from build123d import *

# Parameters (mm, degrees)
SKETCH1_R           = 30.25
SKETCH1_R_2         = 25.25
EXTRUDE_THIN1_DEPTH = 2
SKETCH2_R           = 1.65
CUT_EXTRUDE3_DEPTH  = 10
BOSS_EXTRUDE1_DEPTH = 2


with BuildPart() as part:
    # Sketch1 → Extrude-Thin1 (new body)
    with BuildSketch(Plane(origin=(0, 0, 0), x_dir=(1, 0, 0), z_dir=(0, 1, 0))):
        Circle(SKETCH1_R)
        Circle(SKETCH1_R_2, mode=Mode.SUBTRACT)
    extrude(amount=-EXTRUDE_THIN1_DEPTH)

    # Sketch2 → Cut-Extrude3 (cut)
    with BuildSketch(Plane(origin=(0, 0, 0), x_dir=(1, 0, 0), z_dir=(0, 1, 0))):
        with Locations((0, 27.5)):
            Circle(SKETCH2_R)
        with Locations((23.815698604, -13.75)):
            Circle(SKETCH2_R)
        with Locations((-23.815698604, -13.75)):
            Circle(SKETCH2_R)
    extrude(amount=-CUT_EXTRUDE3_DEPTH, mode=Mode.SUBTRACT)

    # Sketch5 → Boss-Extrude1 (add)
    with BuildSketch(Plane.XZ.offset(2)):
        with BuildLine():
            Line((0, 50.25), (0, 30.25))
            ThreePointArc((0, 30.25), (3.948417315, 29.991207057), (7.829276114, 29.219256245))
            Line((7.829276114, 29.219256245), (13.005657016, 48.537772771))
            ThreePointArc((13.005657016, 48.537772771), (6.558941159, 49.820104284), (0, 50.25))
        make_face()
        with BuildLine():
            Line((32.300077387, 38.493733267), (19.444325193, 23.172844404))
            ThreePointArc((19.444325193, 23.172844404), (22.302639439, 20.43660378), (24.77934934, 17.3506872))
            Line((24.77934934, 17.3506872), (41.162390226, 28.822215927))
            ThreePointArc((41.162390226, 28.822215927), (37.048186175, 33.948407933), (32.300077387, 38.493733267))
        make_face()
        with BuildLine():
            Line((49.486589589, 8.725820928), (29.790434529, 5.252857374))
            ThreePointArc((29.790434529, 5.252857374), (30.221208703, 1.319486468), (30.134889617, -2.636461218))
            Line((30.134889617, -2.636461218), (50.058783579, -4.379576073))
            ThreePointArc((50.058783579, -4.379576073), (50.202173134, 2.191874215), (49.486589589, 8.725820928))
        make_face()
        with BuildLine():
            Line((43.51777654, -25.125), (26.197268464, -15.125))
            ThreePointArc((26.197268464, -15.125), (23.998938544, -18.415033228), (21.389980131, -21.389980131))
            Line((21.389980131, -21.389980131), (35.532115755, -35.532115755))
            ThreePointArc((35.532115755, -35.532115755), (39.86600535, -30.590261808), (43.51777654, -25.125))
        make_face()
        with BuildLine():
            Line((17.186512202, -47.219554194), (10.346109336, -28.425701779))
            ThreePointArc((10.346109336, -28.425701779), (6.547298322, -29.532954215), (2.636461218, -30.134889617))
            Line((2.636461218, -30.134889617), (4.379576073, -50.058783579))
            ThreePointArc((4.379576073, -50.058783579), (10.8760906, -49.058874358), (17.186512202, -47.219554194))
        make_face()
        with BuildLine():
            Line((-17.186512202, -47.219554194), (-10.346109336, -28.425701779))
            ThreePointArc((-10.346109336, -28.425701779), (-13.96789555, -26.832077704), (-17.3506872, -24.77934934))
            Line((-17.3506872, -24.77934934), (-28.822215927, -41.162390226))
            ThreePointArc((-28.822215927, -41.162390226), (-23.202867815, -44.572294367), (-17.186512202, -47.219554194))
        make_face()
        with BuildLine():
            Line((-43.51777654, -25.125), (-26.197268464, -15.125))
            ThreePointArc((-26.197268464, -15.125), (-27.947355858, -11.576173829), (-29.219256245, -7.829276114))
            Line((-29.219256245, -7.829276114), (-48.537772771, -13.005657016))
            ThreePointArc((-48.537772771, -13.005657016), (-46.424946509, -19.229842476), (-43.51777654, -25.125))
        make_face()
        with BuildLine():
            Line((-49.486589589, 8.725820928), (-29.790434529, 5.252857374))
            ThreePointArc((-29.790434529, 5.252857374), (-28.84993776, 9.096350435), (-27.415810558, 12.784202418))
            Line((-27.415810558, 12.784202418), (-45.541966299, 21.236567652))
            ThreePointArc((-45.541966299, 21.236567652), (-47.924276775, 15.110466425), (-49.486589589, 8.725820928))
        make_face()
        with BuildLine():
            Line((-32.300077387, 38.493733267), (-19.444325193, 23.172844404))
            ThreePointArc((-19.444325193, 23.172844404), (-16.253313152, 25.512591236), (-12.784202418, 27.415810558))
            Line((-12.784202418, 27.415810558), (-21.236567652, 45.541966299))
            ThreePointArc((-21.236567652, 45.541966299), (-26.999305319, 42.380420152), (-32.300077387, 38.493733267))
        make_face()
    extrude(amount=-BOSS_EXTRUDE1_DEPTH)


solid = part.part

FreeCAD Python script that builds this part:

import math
import FreeCAD as App
import Part
import Sketcher

V = App.Vector
Q = App.Units.Quantity

doc = App.newDocument("Part")
body = doc.addObject("PartDesign::Body", "Body")

sketch1 = body.newObject("Sketcher::SketchObject", "Sketch")
sketch1.AttachmentSupport = (doc.getObject("XZ_Plane"), [""])
sketch1.MapMode = "FlatFace"
sketch1.addGeometry([
    Part.Circle(V(0, 0, 0), V(0, 0, 1), 30),
    Part.Circle(V(0, 0, 0), V(0, 0, 1), 25),
], False)
sketch1.addConstraint([
    Sketcher.Constraint("Coincident", 0, 3, -1, 1),
    Sketcher.Constraint("Coincident", 1, 3, -1, 1),
    Sketcher.Constraint("Diameter", 0, 60.5),
    Sketcher.Constraint("Diameter", 1, 50.5),
])
pad1 = body.newObject("PartDesign::Pad", "Pad")
pad1.Profile = sketch1
pad1.Length = 2

sketch2 = body.newObject("Sketcher::SketchObject", "Sketch001")
sketch2.AttachmentSupport = (doc.getObject("XZ_Plane"), [""])
sketch2.MapMode = "FlatFace"
sketch2.addGeometry([
    Part.Circle(V(0, -27.5, 0), V(0, 0, 1), 1.6),
    Part.Circle(V(23.8, 13.8, 0), V(0, 0, 1), 1.6),
    Part.Circle(V(-23.8, 13.8, 0), V(0, 0, 1), 1.6),
], False)
sketch2.addConstraint([
    Sketcher.Constraint("Equal", 0, 1),
    Sketcher.Constraint("Equal", 1, 2),
    Sketcher.Constraint("Symmetric", 1, 3, 2, 3, -2),
    Sketcher.Constraint("PointOnObject", 0, 3, -2),
    Sketcher.Constraint("Diameter", 0, 3.3),
    Sketcher.Constraint("DistanceY", 0, 3, -1, 1, 27.5),
    Sketcher.Constraint("DistanceY", -1, 1, 1, 3, 13.75),
    Sketcher.Constraint("DistanceX", -1, 1, 1, 3, 23.815699),
])
pocket1 = body.newObject("PartDesign::Pocket", "Pocket")
pocket1.Profile = sketch2
pocket1.Length = 10
pocket1.Reversed = True

sketch3 = body.newObject("Sketcher::SketchObject", "Sketch002")
sketch3.AttachmentSupport = (doc.getObject("XZ_Plane"), [""])
sketch3.MapMode = "FlatFace"
sketch3.AttachmentOffset = App.Placement(V(0, 0, 2), App.Rotation())
sketch3.addGeometry([
    Part.LineSegment(V(0, 50, 0), V(0, 30, 0)),
    Part.ArcOfCircle(Part.Circle(V(0, 0, 0), V(0, 0, 1), 30), math.radians(75), math.radians(90)),
    Part.LineSegment(V(8, 29, 0), V(13, 49, 0)),
    Part.ArcOfCircle(Part.Circle(V(0, 0, 0), V(0, 0, 1), 50), math.radians(75), math.radians(90)),
    Part.LineSegment(V(32, 38, 0), V(19, 23, 0)),
    Part.ArcOfCircle(Part.Circle(V(0, 0, 0), V(0, 0, 1), 30), math.radians(35), math.radians(50)),
    Part.LineSegment(V(25, 17, 0), V(41, 29, 0)),
    Part.ArcOfCircle(Part.Circle(V(0, 0, 0), V(0, 0, 1), 50), math.radians(35), math.radians(50)),
    Part.LineSegment(V(49, 9, 0), V(30, 5, 0)),
    Part.ArcOfCircle(Part.Circle(V(0, 0, 0), V(0, 0, 1), 30), math.radians(-5), math.radians(10)),
    Part.LineSegment(V(30, -3, 0), V(50, -4, 0)),
    Part.ArcOfCircle(Part.Circle(V(0, 0, 0), V(0, 0, 1), 50), math.radians(-5), math.radians(10)),
    Part.LineSegment(V(44, -25, 0), V(26, -15, 0)),
    Part.ArcOfCircle(Part.Circle(V(0, 0, 0), V(0, 0, 1), 30), math.radians(-45), math.radians(-30)),
    Part.LineSegment(V(21, -21, 0), V(36, -36, 0)),
    Part.ArcOfCircle(Part.Circle(V(0, 0, 0), V(0, 0, 1), 50), math.radians(-45), math.radians(-30)),
    Part.LineSegment(V(17, -47, 0), V(10, -28, 0)),
    Part.ArcOfCircle(Part.Circle(V(0, 0, 0), V(0, 0, 1), 30), math.radians(-85), math.radians(-70)),
    Part.LineSegment(V(3, -30, 0), V(4, -50, 0)),
    Part.ArcOfCircle(Part.Circle(V(0, 0, 0), V(0, 0, 1), 50), math.radians(-85), math.radians(-70)),
    Part.LineSegment(V(-17, -47, 0), V(-10, -28, 0)),
    Part.ArcOfCircle(Part.Circle(V(0, 0, 0), V(0, 0, 1), 30), math.radians(-125), math.radians(-110)),
    Part.LineSegment(V(-17, -25, 0), V(-29, -41, 0)),
    Part.ArcOfCircle(Part.Circle(V(0, 0, 0), V(0, 0, 1), 50), math.radians(-125), math.radians(-110)),
    Part.LineSegment(V(-44, -25, 0), V(-26, -15, 0)),
    Part.ArcOfCircle(Part.Circle(V(0, 0, 0), V(0, 0, 1), 30), math.radians(-165), math.radians(-150)),
    Part.LineSegment(V(-29, -8, 0), V(-49, -13, 0)),
    Part.ArcOfCircle(Part.Circle(V(0, 0, 0), V(0, 0, 1), 50), math.radians(-165), math.radians(-150)),
    Part.LineSegment(V(-49, 9, 0), V(-30, 5, 0)),
    Part.ArcOfCircle(Part.Circle(V(0, 0, 0), V(0, 0, 1), 30), math.radians(155), math.radians(170)),
    Part.LineSegment(V(-27, 13, 0), V(-46, 21, 0)),
    Part.ArcOfCircle(Part.Circle(V(0, 0, 0), V(0, 0, 1), 50), math.radians(155), math.radians(170)),
    Part.LineSegment(V(-32, 38, 0), V(-19, 23, 0)),
    Part.ArcOfCircle(Part.Circle(V(0, 0, 0), V(0, 0, 1), 30), math.radians(115), math.radians(130)),
    Part.LineSegment(V(-13, 27, 0), V(-21, 46, 0)),
    Part.ArcOfCircle(Part.Circle(V(0, 0, 0), V(0, 0, 1), 50), math.radians(115), math.radians(130)),
], False)
sketch3.addConstraint([
    Sketcher.Constraint("Coincident", 0, 2, 1, 2),
    Sketcher.Constraint("Coincident", 1, 1, 2, 1),
    Sketcher.Constraint("Coincident", 2, 2, 3, 1),
    Sketcher.Constraint("Coincident", 3, 2, 0, 1),
    Sketcher.Constraint("Coincident", 4, 2, 5, 2),
    Sketcher.Constraint("Coincident", 5, 1, 6, 1),
    Sketcher.Constraint("Coincident", 6, 2, 7, 1),
    Sketcher.Constraint("Coincident", 7, 2, 4, 1),
    Sketcher.Constraint("Coincident", 8, 2, 9, 2),
    Sketcher.Constraint("Coincident", 9, 1, 10, 1),
    Sketcher.Constraint("Coincident", 10, 2, 11, 1),
    Sketcher.Constraint("Coincident", 11, 2, 8, 1),
    Sketcher.Constraint("Coincident", 12, 2, 13, 2),
    Sketcher.Constraint("Coincident", 13, 1, 14, 1),
    Sketcher.Constraint("Coincident", 14, 2, 15, 1),
    Sketcher.Constraint("Coincident", 15, 2, 12, 1),
    Sketcher.Constraint("Coincident", 16, 2, 17, 2),
    Sketcher.Constraint("Coincident", 17, 1, 18, 1),
    Sketcher.Constraint("Coincident", 18, 2, 19, 1),
    Sketcher.Constraint("Coincident", 19, 2, 16, 1),
    Sketcher.Constraint("Coincident", 20, 2, 21, 2),
    Sketcher.Constraint("Coincident", 21, 1, 22, 1),
    Sketcher.Constraint("Coincident", 22, 2, 23, 1),
    Sketcher.Constraint("Coincident", 23, 2, 20, 1),
    Sketcher.Constraint("Coincident", 24, 2, 25, 2),
    Sketcher.Constraint("Coincident", 25, 1, 26, 1),
    Sketcher.Constraint("Coincident", 26, 2, 27, 1),
    Sketcher.Constraint("Coincident", 27, 2, 24, 1),
    Sketcher.Constraint("Coincident", 28, 2, 29, 2),
    Sketcher.Constraint("Coincident", 29, 1, 30, 1),
    Sketcher.Constraint("Coincident", 30, 2, 31, 1),
    Sketcher.Constraint("Coincident", 31, 2, 28, 1),
    Sketcher.Constraint("Coincident", 32, 2, 33, 2),
    Sketcher.Constraint("Coincident", 33, 1, 34, 1),
    Sketcher.Constraint("Coincident", 34, 2, 35, 1),
    Sketcher.Constraint("Coincident", 35, 2, 32, 1),
    Sketcher.Constraint("Vertical", 0),
    Sketcher.Constraint("Coincident", 1, 3, -1, 1),
    Sketcher.Constraint("Coincident", 3, 3, -1, 1),
    Sketcher.Constraint("Coincident", 5, 3, -1, 1),
    Sketcher.Constraint("Coincident", 7, 3, -1, 1),
    Sketcher.Constraint("Coincident", 9, 3, -1, 1),
    Sketcher.Constraint("Coincident", 11, 3, -1, 1),
    Sketcher.Constraint("Coincident", 13, 3, -1, 1),
    Sketcher.Constraint("Coincident", 15, 3, -1, 1),
    Sketcher.Constraint("Coincident", 17, 3, -1, 1),
    Sketcher.Constraint("Coincident", 19, 3, -1, 1),
    Sketcher.Constraint("Coincident", 21, 3, -1, 1),
    Sketcher.Constraint("Coincident", 23, 3, -1, 1),
    Sketcher.Constraint("Coincident", 25, 3, -1, 1),
    Sketcher.Constraint("Coincident", 27, 3, -1, 1),
    Sketcher.Constraint("Coincident", 29, 3, -1, 1),
    Sketcher.Constraint("Coincident", 31, 3, -1, 1),
    Sketcher.Constraint("Coincident", 33, 3, -1, 1),
    Sketcher.Constraint("Coincident", 35, 3, -1, 1),
    Sketcher.Constraint("Equal", 1, 5),
    Sketcher.Constraint("Equal", 3, 7),
    Sketcher.Constraint("Equal", 5, 9),
    Sketcher.Constraint("Equal", 7, 11),
    Sketcher.Constraint("Equal", 9, 13),
    Sketcher.Constraint("Equal", 11, 15),
    Sketcher.Constraint("Equal", 13, 17),
    Sketcher.Constraint("Equal", 15, 19),
    Sketcher.Constraint("Equal", 17, 21),
    Sketcher.Constraint("Equal", 19, 23),
    Sketcher.Constraint("Equal", 21, 25),
    Sketcher.Constraint("Equal", 23, 27),
    Sketcher.Constraint("Equal", 25, 29),
    Sketcher.Constraint("Equal", 27, 31),
    Sketcher.Constraint("Equal", 29, 33),
    Sketcher.Constraint("Equal", 31, 35),
    Sketcher.Constraint("PointOnObject", 0, 2, -2),
    Sketcher.Constraint("Horizontal", 16, 2, 20, 2),
    Sketcher.Constraint("Horizontal", 19, 2, 23, 2),
    Sketcher.Constraint("Horizontal", 12, 2, 24, 2),
    Sketcher.Constraint("Horizontal", 15, 2, 27, 2),
    Sketcher.Constraint("Horizontal", 8, 2, 28, 2),
    Sketcher.Constraint("Horizontal", 11, 2, 31, 2),
    Sketcher.Constraint("Horizontal", 4, 2, 32, 2),
    Sketcher.Constraint("Horizontal", 7, 2, 35, 2),
    Sketcher.Constraint("DistanceY", 0, 2, 0, 1, 20.0),
    Sketcher.Constraint("Angle", 2, Q("75 deg")),
    Sketcher.Constraint("Angle", 4, Q("-130 deg")),
    Sketcher.Constraint("Angle", 6, Q("35 deg")),
    Sketcher.Constraint("Angle", 8, Q("-170 deg")),
    Sketcher.Constraint("Angle", 10, Q("-5 deg")),
    Sketcher.Constraint("Angle", 12, Q("150 deg")),
    Sketcher.Constraint("Angle", 14, Q("-45 deg")),
    Sketcher.Constraint("Angle", 16, Q("110 deg")),
    Sketcher.Constraint("Angle", 18, Q("-85 deg")),
    Sketcher.Constraint("Angle", 22, Q("-125 deg")),
    Sketcher.Constraint("Angle", 26, Q("-165 deg")),
    Sketcher.Constraint("Angle", 30, Q("155 deg")),
    Sketcher.Constraint("Angle", 34, Q("115 deg")),
    Sketcher.Constraint("Radius", 1, 30.25),
    Sketcher.Constraint("DistanceY", 12, 2, -1, 1, 15.125),
    Sketcher.Constraint("DistanceY", 16, 2, -1, 1, 28.425702),
    Sketcher.Constraint("DistanceX", 1, 1, 7, 2, 24.470801),
    Sketcher.Constraint("DistanceX", 6, 2, 11, 2, 8.324199),
    Sketcher.Constraint("DistanceX", 9, 1, 11, 2, 19.3517),
    Sketcher.Constraint("DistanceY", 22, 2, 17, 1, 11.027501),
    Sketcher.Constraint("DistanceX", 32, 2, 1, 1, 27.273601),
    Sketcher.Constraint("DistanceX", -1, 1, 5, 1, 24.779349),
    Sketcher.Constraint("DistanceX", -1, 1, 13, 1, 21.38998),
    Sketcher.Constraint("DistanceX", -1, 1, 17, 1, 2.636461),
    Sketcher.Constraint("DistanceX", 29, 1, -1, 1, 27.415811),
    Sketcher.Constraint("DistanceY", -1, 1, 33, 1, 27.415811),
    Sketcher.Constraint("DistanceX", 25, 1, 21, 1, 11.868569),
])
pad2 = body.newObject("PartDesign::Pad", "Pad001")
pad2.Profile = sketch3
pad2.Length = 2
pad2.Reversed = True

doc.recompute()
